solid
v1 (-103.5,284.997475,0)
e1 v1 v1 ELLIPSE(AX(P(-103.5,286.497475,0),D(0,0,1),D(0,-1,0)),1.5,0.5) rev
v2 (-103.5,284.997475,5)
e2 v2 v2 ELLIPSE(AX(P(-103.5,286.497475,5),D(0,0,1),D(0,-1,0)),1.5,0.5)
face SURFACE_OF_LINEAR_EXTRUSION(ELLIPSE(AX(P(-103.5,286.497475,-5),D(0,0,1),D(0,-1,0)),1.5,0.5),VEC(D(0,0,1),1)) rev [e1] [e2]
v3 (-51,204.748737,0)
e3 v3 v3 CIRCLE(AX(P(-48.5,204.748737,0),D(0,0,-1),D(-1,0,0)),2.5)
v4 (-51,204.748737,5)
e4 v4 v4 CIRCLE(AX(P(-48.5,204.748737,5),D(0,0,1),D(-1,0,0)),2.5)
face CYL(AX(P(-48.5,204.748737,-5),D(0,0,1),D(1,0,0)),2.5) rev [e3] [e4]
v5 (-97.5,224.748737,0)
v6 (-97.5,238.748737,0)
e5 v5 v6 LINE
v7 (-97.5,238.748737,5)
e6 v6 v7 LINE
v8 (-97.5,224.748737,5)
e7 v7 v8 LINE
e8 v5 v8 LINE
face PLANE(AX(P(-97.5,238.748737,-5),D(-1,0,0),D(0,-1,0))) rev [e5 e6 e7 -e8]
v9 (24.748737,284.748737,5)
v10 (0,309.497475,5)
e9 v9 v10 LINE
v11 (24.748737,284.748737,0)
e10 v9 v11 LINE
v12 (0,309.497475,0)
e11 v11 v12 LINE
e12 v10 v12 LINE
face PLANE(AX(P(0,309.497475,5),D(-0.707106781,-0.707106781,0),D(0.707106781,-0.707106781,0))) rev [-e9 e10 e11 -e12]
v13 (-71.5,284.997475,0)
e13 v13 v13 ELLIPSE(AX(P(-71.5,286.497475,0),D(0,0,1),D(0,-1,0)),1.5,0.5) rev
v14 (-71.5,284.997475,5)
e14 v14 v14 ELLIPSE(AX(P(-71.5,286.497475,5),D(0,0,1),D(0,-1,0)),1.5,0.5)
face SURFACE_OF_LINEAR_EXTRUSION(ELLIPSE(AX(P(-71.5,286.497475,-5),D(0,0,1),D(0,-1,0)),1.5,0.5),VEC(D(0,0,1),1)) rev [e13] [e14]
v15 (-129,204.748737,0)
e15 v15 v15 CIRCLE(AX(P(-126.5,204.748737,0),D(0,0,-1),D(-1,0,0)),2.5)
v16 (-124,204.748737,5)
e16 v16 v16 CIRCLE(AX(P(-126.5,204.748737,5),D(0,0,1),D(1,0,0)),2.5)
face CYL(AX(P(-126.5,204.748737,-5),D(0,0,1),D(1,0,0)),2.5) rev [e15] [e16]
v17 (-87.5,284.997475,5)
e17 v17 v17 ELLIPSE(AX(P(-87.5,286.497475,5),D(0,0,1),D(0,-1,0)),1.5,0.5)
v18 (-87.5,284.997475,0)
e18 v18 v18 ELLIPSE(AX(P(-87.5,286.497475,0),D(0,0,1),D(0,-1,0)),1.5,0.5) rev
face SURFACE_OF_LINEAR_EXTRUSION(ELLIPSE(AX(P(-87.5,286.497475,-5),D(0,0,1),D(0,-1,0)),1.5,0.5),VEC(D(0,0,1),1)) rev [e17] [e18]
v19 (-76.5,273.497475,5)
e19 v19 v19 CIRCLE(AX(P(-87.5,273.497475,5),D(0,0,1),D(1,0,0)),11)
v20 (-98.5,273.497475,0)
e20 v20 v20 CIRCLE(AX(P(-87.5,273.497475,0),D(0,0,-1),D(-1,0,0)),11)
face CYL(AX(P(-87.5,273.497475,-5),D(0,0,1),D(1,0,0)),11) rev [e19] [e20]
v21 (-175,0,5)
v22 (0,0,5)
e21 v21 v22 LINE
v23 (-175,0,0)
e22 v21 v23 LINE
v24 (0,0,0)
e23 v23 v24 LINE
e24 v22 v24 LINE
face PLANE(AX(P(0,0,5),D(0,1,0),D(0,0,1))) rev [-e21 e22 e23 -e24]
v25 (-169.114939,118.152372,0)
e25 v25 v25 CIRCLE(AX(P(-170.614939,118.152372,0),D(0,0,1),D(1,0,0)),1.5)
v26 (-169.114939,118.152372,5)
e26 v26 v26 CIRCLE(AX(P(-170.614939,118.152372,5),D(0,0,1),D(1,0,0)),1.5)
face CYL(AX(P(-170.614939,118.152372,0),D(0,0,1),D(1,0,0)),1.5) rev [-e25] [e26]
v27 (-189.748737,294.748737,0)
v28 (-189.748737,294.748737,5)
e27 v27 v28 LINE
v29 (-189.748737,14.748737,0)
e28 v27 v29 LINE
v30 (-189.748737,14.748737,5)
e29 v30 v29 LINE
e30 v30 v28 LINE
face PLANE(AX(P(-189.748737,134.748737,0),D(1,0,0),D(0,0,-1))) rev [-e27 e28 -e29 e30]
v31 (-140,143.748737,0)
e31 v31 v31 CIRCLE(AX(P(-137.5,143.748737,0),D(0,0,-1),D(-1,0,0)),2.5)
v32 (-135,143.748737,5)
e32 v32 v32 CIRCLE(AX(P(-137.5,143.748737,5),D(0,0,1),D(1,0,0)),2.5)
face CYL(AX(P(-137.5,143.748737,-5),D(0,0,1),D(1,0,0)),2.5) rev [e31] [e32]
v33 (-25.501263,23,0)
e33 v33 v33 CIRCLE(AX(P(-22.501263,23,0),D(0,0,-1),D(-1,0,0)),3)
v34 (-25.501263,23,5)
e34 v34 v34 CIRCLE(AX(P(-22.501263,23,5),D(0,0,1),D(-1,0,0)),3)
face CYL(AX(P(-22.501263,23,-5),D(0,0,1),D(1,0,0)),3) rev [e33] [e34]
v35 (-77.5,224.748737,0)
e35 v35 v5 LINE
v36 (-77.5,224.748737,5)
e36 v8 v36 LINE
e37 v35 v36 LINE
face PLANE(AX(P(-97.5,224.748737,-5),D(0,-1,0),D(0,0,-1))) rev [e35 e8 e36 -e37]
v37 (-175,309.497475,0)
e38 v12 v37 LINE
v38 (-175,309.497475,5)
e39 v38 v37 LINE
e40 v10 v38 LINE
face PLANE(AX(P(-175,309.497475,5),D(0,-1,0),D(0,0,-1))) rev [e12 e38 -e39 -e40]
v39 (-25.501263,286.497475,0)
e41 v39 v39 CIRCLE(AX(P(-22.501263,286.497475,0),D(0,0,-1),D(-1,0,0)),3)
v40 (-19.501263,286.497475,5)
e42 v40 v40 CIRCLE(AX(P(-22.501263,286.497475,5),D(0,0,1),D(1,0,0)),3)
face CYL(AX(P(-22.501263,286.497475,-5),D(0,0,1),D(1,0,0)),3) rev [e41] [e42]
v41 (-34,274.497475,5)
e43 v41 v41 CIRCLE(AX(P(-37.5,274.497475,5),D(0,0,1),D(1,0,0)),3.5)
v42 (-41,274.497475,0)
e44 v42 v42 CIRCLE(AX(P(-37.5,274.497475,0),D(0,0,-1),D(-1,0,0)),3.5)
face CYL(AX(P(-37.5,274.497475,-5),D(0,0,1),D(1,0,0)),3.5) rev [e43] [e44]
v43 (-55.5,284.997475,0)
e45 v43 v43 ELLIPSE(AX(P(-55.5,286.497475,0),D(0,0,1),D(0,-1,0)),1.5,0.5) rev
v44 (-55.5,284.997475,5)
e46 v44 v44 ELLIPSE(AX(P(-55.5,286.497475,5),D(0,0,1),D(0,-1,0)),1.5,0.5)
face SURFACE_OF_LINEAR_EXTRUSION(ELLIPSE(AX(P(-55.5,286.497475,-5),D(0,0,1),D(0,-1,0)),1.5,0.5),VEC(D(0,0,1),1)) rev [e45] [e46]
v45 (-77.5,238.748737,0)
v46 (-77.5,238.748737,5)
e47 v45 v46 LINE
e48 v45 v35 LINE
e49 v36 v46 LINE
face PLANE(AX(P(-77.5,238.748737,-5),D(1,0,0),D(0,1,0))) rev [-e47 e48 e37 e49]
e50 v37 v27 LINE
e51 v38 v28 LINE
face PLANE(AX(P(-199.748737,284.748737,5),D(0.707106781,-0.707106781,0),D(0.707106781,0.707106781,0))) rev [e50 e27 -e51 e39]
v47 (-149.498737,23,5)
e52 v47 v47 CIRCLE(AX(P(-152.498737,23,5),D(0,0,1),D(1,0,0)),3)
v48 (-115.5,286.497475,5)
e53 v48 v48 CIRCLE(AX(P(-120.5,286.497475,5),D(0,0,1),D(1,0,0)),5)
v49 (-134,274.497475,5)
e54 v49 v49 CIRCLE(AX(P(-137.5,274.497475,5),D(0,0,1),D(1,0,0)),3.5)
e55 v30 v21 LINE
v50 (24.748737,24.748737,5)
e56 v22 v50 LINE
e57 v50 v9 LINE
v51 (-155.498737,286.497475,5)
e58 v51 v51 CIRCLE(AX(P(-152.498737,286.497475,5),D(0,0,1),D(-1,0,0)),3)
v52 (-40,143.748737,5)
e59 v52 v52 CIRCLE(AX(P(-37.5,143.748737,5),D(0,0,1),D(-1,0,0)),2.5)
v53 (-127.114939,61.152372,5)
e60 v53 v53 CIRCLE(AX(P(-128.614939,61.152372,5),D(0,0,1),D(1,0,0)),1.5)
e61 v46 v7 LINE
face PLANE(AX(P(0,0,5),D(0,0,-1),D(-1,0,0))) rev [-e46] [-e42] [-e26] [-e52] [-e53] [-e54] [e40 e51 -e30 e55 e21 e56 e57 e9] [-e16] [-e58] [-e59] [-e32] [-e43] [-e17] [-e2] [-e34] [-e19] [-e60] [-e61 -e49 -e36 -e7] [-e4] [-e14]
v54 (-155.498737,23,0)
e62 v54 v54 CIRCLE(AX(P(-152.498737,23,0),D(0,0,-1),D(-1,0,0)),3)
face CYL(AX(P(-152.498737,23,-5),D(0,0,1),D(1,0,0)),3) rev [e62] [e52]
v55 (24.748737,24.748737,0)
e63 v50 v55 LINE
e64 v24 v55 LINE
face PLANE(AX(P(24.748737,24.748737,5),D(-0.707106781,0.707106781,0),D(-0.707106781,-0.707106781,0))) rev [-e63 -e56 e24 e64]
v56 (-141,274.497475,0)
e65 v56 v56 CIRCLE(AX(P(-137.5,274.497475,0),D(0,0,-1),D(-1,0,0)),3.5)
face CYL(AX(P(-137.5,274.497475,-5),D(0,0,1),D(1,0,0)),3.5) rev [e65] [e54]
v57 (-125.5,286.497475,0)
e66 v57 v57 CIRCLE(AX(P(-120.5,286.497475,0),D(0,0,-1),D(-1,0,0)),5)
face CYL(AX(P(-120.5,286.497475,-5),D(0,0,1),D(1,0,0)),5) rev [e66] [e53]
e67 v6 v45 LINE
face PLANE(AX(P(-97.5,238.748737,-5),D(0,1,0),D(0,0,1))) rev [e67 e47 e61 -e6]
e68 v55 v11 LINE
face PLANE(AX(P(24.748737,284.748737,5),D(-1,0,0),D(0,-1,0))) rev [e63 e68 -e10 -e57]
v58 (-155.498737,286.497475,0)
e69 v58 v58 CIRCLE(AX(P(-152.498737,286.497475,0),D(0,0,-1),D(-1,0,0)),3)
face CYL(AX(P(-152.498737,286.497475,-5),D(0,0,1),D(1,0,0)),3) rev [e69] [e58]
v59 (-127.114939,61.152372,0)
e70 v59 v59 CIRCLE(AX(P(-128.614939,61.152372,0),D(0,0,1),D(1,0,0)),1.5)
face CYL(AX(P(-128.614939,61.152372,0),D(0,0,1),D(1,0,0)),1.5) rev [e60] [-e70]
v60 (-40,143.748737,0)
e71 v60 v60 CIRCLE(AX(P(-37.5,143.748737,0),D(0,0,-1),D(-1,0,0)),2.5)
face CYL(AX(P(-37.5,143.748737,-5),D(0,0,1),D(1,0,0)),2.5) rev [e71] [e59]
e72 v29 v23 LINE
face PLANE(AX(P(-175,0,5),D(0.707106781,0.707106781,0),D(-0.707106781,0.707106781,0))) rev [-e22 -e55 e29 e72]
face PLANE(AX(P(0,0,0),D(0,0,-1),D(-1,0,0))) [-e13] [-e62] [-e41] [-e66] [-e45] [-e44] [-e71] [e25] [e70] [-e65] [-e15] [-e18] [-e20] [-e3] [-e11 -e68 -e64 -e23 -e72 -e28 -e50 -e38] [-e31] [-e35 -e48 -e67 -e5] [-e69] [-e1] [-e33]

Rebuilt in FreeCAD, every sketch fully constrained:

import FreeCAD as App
import Part
import Sketcher


def add_polygon(sketch, points):
    """Adds a closed chain of lines whose ends are joined by coincident constraints."""
    first, n = sketch.GeometryCount, len(points)
    for a, b in zip(points, points[1:] + points[:1]):
        sketch.addGeometry(Part.LineSegment(App.Vector(*a, 0), App.Vector(*b, 0)), False)
    for i in range(n):
        sketch.addConstraint(Sketcher.Constraint("Coincident", first + i, 2, first + (i + 1) % n, 1))

doc = App.newDocument("Part")
body = doc.addObject("PartDesign::Body", "Body")

# Sketch on XY plane
sketch1 = doc.addObject("Sketcher::SketchObject", "Sketch")
body.addObject(sketch1)
sketch1.AttachmentSupport = (doc.XY_Plane, [""])
sketch1.MapMode = "FlatFace"
add_polygon(sketch1, [(-175, 0), (0, 0), (24.748737, 24.748737), (24.748737, 284.748737), (0, 309.497475), (-175, 309.497475), (-199.748737, 284.748737), (-199.748737, 24.748737)])  # lines 0-7
sketch1.addConstraint(Sketcher.Constraint("Horizontal", 0))
sketch1.addConstraint(Sketcher.Constraint("Vertical", 2))
sketch1.addConstraint(Sketcher.Constraint("Horizontal", 4))
sketch1.addConstraint(Sketcher.Constraint("Vertical", 6))
sketch1.addConstraint(Sketcher.Constraint("Coincident", 0, 2, -1, 1))
sketch1.addConstraint(Sketcher.Constraint("PointOnObject", 3, 2, -2))
sketch1.addConstraint(Sketcher.Constraint("Perpendicular", 1, 3))
sketch1.addConstraint(Sketcher.Constraint("Perpendicular", 3, 5))
sketch1.addConstraint(Sketcher.Constraint("Perpendicular", 5, 7))
sketch1.addConstraint(Sketcher.Constraint("Horizontal", 2, 2, 5, 2))
sketch1.addConstraint(Sketcher.Constraint("Horizontal", 1, 2, 6, 2))
sketch1.addConstraint(Sketcher.Constraint("Vertical", 4, 2, 7, 2))
sketch1.addConstraint(Sketcher.Constraint("DistanceX", 0, 1, 0, 2, 175.0))
sketch1.addConstraint(Sketcher.Constraint("DistanceY", 2, 1, 2, 2, 260.0))
sketch1.addConstraint(Sketcher.Constraint("Distance", 1, 35.0))
pad1 = doc.addObject("PartDesign::Pad", "Pad")
body.addObject(pad1)
pad1.Profile = sketch1
pad1.Length = 5

# Sketch on XY plane
sketch2 = doc.addObject("Sketcher::SketchObject", "Sketch001")
body.addObject(sketch2)
sketch2.AttachmentSupport = (doc.XY_Plane, [""])
sketch2.MapMode = "FlatFace"
sketch2.AttachmentOffset = App.Placement(App.Vector(0, 0, 5), App.Rotation())
sketch2.addGeometry(Part.Circle(App.Vector(-120.5, 286.497475, 0), App.Vector(0, 0, 1), 5), False)
sketch2.addConstraint(Sketcher.Constraint("Diameter", 0, 10.0))
sketch2.addConstraint(Sketcher.Constraint("DistanceX", 0, 3, -1, 1, 120.5))
sketch2.addConstraint(Sketcher.Constraint("DistanceY", -1, 1, 0, 3, 286.497475))
pocket1 = doc.addObject("PartDesign::Pocket", "Pocket")
body.addObject(pocket1)
pocket1.Profile = sketch2
pocket1.Length = 10

# Sketch on XY plane
sketch3 = doc.addObject("Sketcher::SketchObject", "Sketch002")
body.addObject(sketch3)
sketch3.AttachmentSupport = (doc.XY_Plane, [""])
sketch3.MapMode = "FlatFace"
sketch3.AttachmentOffset = App.Placement(App.Vector(0, 0, 5), App.Rotation())
sketch3.addGeometry(Part.Circle(App.Vector(-87.5, 273.497475, 0), App.Vector(0, 0, 1), 11), False)  # 0
sketch3.addGeometry(Part.Circle(App.Vector(-137.5, 274.497475, 0), App.Vector(0, 0, 1), 3.5), False)  # 1
sketch3.addGeometry(Part.Circle(App.Vector(-37.5, 274.497475, 0), App.Vector(0, 0, 1), 3.5), False)  # 2
sketch3.addGeometry(Part.Ellipse(App.Vector(-103.5, 284.997475, 0), App.Vector(-103, 286.497475, 0), App.Vector(-103.5, 286.497475, 0)), False)  # 3
sketch3.addGeometry(Part.Ellipse(App.Vector(-87.5, 284.997475, 0), App.Vector(-87, 286.497475, 0), App.Vector(-87.5, 286.497475, 0)), False)  # 4
sketch3.addGeometry(Part.Ellipse(App.Vector(-71.5, 284.997475, 0), App.Vector(-71, 286.497475, 0), App.Vector(-71.5, 286.497475, 0)), False)  # 5
sketch3.addGeometry(Part.Ellipse(App.Vector(-55.5, 284.997475, 0), App.Vector(-55, 286.497475, 0), App.Vector(-55.5, 286.497475, 0)), False)  # 6
add_polygon(sketch3, [(-97.5, 238.748737), (-97.5, 224.748737), (-77.5, 224.748737), (-77.5, 238.748737)])  # lines 7-10
sketch3.addConstraint(Sketcher.Constraint("Block", 3))
sketch3.addConstraint(Sketcher.Constraint("Block", 4))
sketch3.addConstraint(Sketcher.Constraint("Block", 5))
sketch3.addConstraint(Sketcher.Constraint("Block", 6))
sketch3.addConstraint(Sketcher.Constraint("Vertical", 7))
sketch3.addConstraint(Sketcher.Constraint("Horizontal", 8))
sketch3.addConstraint(Sketcher.Constraint("Vertical", 9))
sketch3.addConstraint(Sketcher.Constraint("Horizontal", 10))
sketch3.addConstraint(Sketcher.Constraint("Equal", 1, 2))
sketch3.addConstraint(Sketcher.Constraint("Horizontal", 1, 3, 2, 3))
sketch3.addConstraint(Sketcher.Constraint("Diameter", 0, 22.0))
sketch3.addConstraint(Sketcher.Constraint("Diameter", 1, 7.0))
sketch3.addConstraint(Sketcher.Constraint("DistanceX", 8, 1, 8, 2, 20.0))
sketch3.addConstraint(Sketcher.Constraint("DistanceY", 7, 2, 7, 1, 14.0))
sketch3.addConstraint(Sketcher.Constraint("DistanceX", 1, 3, 0, 3, 50.0))
sketch3.addConstraint(Sketcher.Constraint("DistanceY", 0, 3, 1, 3, 1.0))
sketch3.addConstraint(Sketcher.Constraint("DistanceX", 0, 3, 2, 3, 50.0))
sketch3.addConstraint(Sketcher.Constraint("DistanceX", 7, 2, 0, 3, 10.0))
sketch3.addConstraint(Sketcher.Constraint("DistanceX", 0, 3, -1, 1, 87.5))
sketch3.addConstraint(Sketcher.Constraint("DistanceY", -1, 1, 0, 3, 273.497475))
sketch3.addConstraint(Sketcher.Constraint("DistanceY", -1, 1, 7, 2, 224.748737))
pocket2 = doc.addObject("PartDesign::Pocket", "Pocket001")
body.addObject(pocket2)
pocket2.Profile = sketch3
pocket2.Length = 10

# Sketch on XY plane
sketch4 = doc.addObject("Sketcher::SketchObject", "Sketch003")
body.addObject(sketch4)
sketch4.AttachmentSupport = (doc.XY_Plane, [""])
sketch4.MapMode = "FlatFace"
sketch4.AttachmentOffset = App.Placement(App.Vector(0, 0, 5), App.Rotation())
sketch4.addGeometry(Part.Circle(App.Vector(-152.498737, 23, 0), App.Vector(0, 0, 1), 3), False)
sketch4.addGeometry(Part.Circle(App.Vector(-152.498737, 286.497475, 0), App.Vector(0, 0, 1), 3), False)
sketch4.addGeometry(Part.Circle(App.Vector(-22.501263, 23, 0), App.Vector(0, 0, 1), 3), False)
sketch4.addGeometry(Part.Circle(App.Vector(-22.501263, 286.497475, 0), App.Vector(0, 0, 1), 3), False)
sketch4.addGeometry(Part.Circle(App.Vector(-137.5, 143.748737, 0), App.Vector(0, 0, 1), 2.5), False)
sketch4.addGeometry(Part.Circle(App.Vector(-126.5, 204.748737, 0), App.Vector(0, 0, 1), 2.5), False)
sketch4.addGeometry(Part.Circle(App.Vector(-37.5, 143.748737, 0), App.Vector(0, 0, 1), 2.5), False)
sketch4.addGeometry(Part.Circle(App.Vector(-48.5, 204.748737, 0), App.Vector(0, 0, 1), 2.5), False)
sketch4.addConstraint(Sketcher.Constraint("Equal", 0, 1))
sketch4.addConstraint(Sketcher.Constraint("Equal", 1, 2))
sketch4.addConstraint(Sketcher.Constraint("Equal", 2, 3))
sketch4.addConstraint(Sketcher.Constraint("Equal", 4, 5))
sketch4.addConstraint(Sketcher.Constraint("Equal", 5, 6))
sketch4.addConstraint(Sketcher.Constraint("Equal", 6, 7))
sketch4.addConstraint(Sketcher.Constraint("Horizontal", 0, 3, 2, 3))
sketch4.addConstraint(Sketcher.Constraint("Horizontal", 1, 3, 3, 3))
sketch4.addConstraint(Sketcher.Constraint("Horizontal", 4, 3, 6, 3))
sketch4.addConstraint(Sketcher.Constraint("Horizontal", 5, 3, 7, 3))
sketch4.addConstraint(Sketcher.Constraint("Vertical", 0, 3, 1, 3))
sketch4.addConstraint(Sketcher.Constraint("Vertical", 2, 3, 3, 3))
sketch4.addConstraint(Sketcher.Constraint("Diameter", 0, 6.0))
sketch4.addConstraint(Sketcher.Constraint("Diameter", 4, 5.0))
sketch4.addConstraint(Sketcher.Constraint("DistanceY", -1, 1, 0, 3, 23.0))
sketch4.addConstraint(Sketcher.Constraint("DistanceX", 4, 3, 5, 3, 11.0))
sketch4.addConstraint(Sketcher.Constraint("DistanceY", 4, 3, 5, 3, 61.0))
sketch4.addConstraint(Sketcher.Constraint("DistanceX", 4, 3, 6, 3, 100.0))
sketch4.addConstraint(Sketcher.Constraint("DistanceX", 7, 3, 6, 3, 11.0))
sketch4.addConstraint(Sketcher.Constraint("DistanceX", 4, 3, -1, 1, 137.5))
sketch4.addConstraint(Sketcher.Constraint("DistanceX", 0, 3, -1, 1, 152.498737))
sketch4.addConstraint(Sketcher.Constraint("DistanceY", -1, 1, 1, 3, 286.497475))
sketch4.addConstraint(Sketcher.Constraint("DistanceX", 2, 3, -1, 1, 22.501263))
sketch4.addConstraint(Sketcher.Constraint("DistanceY", -1, 1, 4, 3, 143.748737))
pocket3 = doc.addObject("PartDesign::Pocket", "Pocket002")
body.addObject(pocket3)
pocket3.Profile = sketch4
pocket3.Length = 10

# Sketch on XY plane
sketch5 = doc.addObject("Sketcher::SketchObject", "Sketch004")
body.addObject(sketch5)
sketch5.AttachmentSupport = (doc.XY_Plane, [""])
sketch5.MapMode = "FlatFace"
sketch5.AttachmentOffset = App.Placement(App.Vector(0, 0, 5), App.Rotation())
sketch5.addGeometry(Part.Circle(App.Vector(-170.614939, 118.152372, 0), App.Vector(0, 0, 1), 1.5), False)  # 0
sketch5.addGeometry(Part.Circle(App.Vector(-128.614939, 61.152372, 0), App.Vector(0, 0, 1), 1.5), False)  # 1
add_polygon(sketch5, [(-189.748737, -12.261016), (-189.748737, 326.523809), (-199.748737, 326.523809), (-199.748737, -12.261016)])  # lines 2-5
sketch5.addConstraint(Sketcher.Constraint("Vertical", 2))
sketch5.addConstraint(Sketcher.Constraint("Horizontal", 3))
sketch5.addConstraint(Sketcher.Constraint("Vertical", 4))
sketch5.addConstraint(Sketcher.Constraint("Horizontal", 5))
sketch5.addConstraint(Sketcher.Constraint("Equal", 0, 1))
sketch5.addConstraint(Sketcher.Constraint("Diameter", 0, 3.0))
sketch5.addConstraint(Sketcher.Constraint("DistanceX", 3, 2, 3, 1, 10.0))
sketch5.addConstraint(Sketcher.Constraint("DistanceX", 0, 3, 1, 3, 42.0))
sketch5.addConstraint(Sketcher.Constraint("DistanceY", 1, 3, 0, 3, 57.0))
sketch5.addConstraint(Sketcher.Constraint("DistanceY", 2, 1, 2, 2, 338.784825))
sketch5.addConstraint(Sketcher.Constraint("DistanceX", 0, 3, -1, 1, 170.614939))
sketch5.addConstraint(Sketcher.Constraint("DistanceY", -1, 1, 0, 3, 118.152372))
sketch5.addConstraint(Sketcher.Constraint("DistanceY", -1, 1, 2, 2, 326.523809))
sketch5.addConstraint(Sketcher.Constraint("DistanceX", 2, 2, -1, 1, 189.748737))
pocket4 = doc.addObject("PartDesign::Pocket", "Pocket003")
body.addObject(pocket4)
pocket4.Profile = sketch5
pocket4.Length = 5

doc.recompute()
